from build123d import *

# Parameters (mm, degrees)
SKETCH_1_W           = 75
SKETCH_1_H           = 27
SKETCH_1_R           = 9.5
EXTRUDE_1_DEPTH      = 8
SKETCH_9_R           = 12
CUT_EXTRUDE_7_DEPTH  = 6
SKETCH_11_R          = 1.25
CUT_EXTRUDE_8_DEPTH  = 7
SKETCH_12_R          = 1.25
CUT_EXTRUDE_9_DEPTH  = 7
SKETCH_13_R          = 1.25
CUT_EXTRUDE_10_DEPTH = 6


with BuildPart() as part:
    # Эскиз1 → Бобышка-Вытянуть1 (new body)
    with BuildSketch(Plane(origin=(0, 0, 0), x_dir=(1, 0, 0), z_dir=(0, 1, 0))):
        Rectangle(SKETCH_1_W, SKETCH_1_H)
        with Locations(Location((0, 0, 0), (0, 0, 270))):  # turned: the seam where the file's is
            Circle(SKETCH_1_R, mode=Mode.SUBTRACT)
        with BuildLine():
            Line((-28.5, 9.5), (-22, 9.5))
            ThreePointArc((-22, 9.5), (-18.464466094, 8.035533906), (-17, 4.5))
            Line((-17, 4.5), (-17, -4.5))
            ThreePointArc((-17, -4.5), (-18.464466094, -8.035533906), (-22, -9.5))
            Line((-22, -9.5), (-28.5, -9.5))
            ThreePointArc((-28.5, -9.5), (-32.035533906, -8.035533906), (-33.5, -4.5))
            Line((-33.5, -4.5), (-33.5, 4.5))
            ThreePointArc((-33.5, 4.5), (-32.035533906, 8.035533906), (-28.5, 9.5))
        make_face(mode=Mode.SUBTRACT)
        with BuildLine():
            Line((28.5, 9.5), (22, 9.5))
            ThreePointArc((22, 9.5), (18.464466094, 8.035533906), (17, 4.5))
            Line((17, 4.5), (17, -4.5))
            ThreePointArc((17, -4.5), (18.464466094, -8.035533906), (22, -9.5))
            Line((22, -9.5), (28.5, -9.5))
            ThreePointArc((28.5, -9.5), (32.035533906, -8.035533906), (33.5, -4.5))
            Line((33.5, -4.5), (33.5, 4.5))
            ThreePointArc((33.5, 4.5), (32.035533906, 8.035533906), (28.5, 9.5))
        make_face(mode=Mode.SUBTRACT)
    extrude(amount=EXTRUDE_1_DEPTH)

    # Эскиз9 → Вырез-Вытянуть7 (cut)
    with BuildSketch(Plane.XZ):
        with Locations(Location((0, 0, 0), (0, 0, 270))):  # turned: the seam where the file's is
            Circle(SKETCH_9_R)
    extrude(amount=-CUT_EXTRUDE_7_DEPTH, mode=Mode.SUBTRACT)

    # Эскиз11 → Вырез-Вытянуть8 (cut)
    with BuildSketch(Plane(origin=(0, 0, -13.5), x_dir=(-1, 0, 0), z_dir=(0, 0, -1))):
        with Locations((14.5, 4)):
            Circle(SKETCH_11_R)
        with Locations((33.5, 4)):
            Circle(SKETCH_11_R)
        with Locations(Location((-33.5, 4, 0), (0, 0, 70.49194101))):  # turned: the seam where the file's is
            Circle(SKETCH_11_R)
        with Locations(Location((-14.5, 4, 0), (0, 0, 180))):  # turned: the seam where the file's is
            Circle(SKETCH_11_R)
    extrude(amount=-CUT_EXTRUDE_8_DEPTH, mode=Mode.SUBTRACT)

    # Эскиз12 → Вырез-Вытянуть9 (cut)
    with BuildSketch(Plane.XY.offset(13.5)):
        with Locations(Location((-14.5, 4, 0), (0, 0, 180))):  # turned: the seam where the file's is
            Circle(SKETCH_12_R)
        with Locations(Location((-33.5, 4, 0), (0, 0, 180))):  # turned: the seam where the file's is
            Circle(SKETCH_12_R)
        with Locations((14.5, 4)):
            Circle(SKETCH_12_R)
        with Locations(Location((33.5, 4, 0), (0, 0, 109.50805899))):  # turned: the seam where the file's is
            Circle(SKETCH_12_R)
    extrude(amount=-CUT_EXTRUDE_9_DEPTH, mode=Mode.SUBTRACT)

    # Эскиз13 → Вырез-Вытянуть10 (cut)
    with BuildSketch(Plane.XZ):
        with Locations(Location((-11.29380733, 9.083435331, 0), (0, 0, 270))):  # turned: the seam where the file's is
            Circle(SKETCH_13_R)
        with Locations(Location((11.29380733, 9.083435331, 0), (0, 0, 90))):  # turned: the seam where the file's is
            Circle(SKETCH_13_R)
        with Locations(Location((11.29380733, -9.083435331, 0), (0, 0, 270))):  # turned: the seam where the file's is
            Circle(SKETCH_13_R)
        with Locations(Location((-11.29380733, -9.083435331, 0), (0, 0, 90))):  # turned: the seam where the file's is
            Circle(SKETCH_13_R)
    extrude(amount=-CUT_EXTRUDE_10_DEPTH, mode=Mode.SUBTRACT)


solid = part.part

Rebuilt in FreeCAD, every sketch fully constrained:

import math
import FreeCAD as App
import Part
import Sketcher

doc = App.newDocument("Part")
body = doc.addObject("PartDesign::Body", "Body")

sketch1 = body.newObject("Sketcher::SketchObject", "Sketch")
sketch1.AttachmentSupport = (doc.getObject("XZ_Plane"), [""])
sketch1.MapMode = "FlatFace"
sketch1.addGeometry([
    Part.LineSegment(App.Vector(-37.5, -13.5, 0), App.Vector(-37.5, 13.5, 0)),
    Part.LineSegment(App.Vector(-37.5, 13.5, 0), App.Vector(37.5, 13.5, 0)),
    Part.LineSegment(App.Vector(37.5, 13.5, 0), App.Vector(37.5, -13.5, 0)),
    Part.LineSegment(App.Vector(37.5, -13.5, 0), App.Vector(-37.5, -13.5, 0)),
    Part.ArcOfCircle(Part.Circle(App.Vector(-28.5, -4.5, 0), App.Vector(0, 0, 1), 5), math.radians(180), math.radians(270)),
    Part.LineSegment(App.Vector(-28.5, -9.5, 0), App.Vector(-22, -9.5, 0)),
    Part.ArcOfCircle(Part.Circle(App.Vector(-22, -4.5, 0), App.Vector(0, 0, 1), 5), math.radians(-90), math.radians(0)),
    Part.LineSegment(App.Vector(-17, -4.5, 0), App.Vector(-17, 4.5, 0)),
    Part.ArcOfCircle(Part.Circle(App.Vector(-22, 4.5, 0), App.Vector(0, 0, 1), 5), math.radians(0), math.radians(90)),
    Part.LineSegment(App.Vector(-22, 9.5, 0), App.Vector(-28.5, 9.5, 0)),
    Part.ArcOfCircle(Part.Circle(App.Vector(-28.5, 4.5, 0), App.Vector(0, 0, 1), 5), math.radians(90), math.radians(180)),
    Part.LineSegment(App.Vector(-33.5, 4.5, 0), App.Vector(-33.5, -4.5, 0)),
    Part.Circle(App.Vector(0, 0, 0), App.Vector(0, 0, 1), 9.5),
    Part.LineSegment(App.Vector(22, -9.5, 0), App.Vector(28.5, -9.5, 0)),
    Part.ArcOfCircle(Part.Circle(App.Vector(28.5, -4.5, 0), App.Vector(0, 0, 1), 5), math.radians(-90), math.radians(0)),
    Part.LineSegment(App.Vector(33.5, -4.5, 0), App.Vector(33.5, 4.5, 0)),
    Part.ArcOfCircle(Part.Circle(App.Vector(28.5, 4.5, 0), App.Vector(0, 0, 1), 5), math.radians(0), math.radians(90)),
    Part.LineSegment(App.Vector(28.5, 9.5, 0), App.Vector(22, 9.5, 0)),
    Part.ArcOfCircle(Part.Circle(App.Vector(22, 4.5, 0), App.Vector(0, 0, 1), 5), math.radians(90), math.radians(180)),
    Part.LineSegment(App.Vector(17, 4.5, 0), App.Vector(17, -4.5, 0)),
    Part.ArcOfCircle(Part.Circle(App.Vector(22, -4.5, 0), App.Vector(0, 0, 1), 5), math.radians(180), math.radians(270)),
], False)
sketch1.addConstraint([
    Sketcher.Constraint("Coincident", 0, 2, 1, 1),
    Sketcher.Constraint("Coincident", 1, 2, 2, 1),
    Sketcher.Constraint("Coincident", 2, 2, 3, 1),
    Sketcher.Constraint("Coincident", 3, 2, 0, 1),
    Sketcher.Constraint("Tangent", 4, 2, 5, 1),
    Sketcher.Constraint("Tangent", 5, 2, 6, 1),
    Sketcher.Constraint("Tangent", 6, 2, 7, 1),
    Sketcher.Constraint("Tangent", 7, 2, 8, 1),
    Sketcher.Constraint("Tangent", 8, 2, 9, 1),
    Sketcher.Constraint("Tangent", 9, 2, 10, 1),
    Sketcher.Constraint("Tangent", 10, 2, 11, 1),
    Sketcher.Constraint("Tangent", 11, 2, 4, 1),
    Sketcher.Constraint("Tangent", 13, 2, 14, 1),
    Sketcher.Constraint("Tangent", 14, 2, 15, 1),
    Sketcher.Constraint("Tangent", 15, 2, 16, 1),
    Sketcher.Constraint("Tangent", 16, 2, 17, 1),
    Sketcher.Constraint("Tangent", 17, 2, 18, 1),
    Sketcher.Constraint("Tangent", 18, 2, 19, 1),
    Sketcher.Constraint("Tangent", 19, 2, 20, 1),
    Sketcher.Constraint("Tangent", 20, 2, 13, 1),
    Sketcher.Constraint("Vertical", 0),
    Sketcher.Constraint("Horizontal", 1),
    Sketcher.Constraint("Vertical", 2),
    Sketcher.Constraint("Horizontal", 3),
    Sketcher.Constraint("Horizontal", 5),
    Sketcher.Constraint("Vertical", 7),
    Sketcher.Constraint("Horizontal", 9),
    Sketcher.Constraint("Vertical", 11),
    Sketcher.Constraint("Horizontal", 13),
    Sketcher.Constraint("Vertical", 15),
    Sketcher.Constraint("Horizontal", 17),
    Sketcher.Constraint("Vertical", 19),
    Sketcher.Constraint("Coincident", 12, 3, -1, 1),
    Sketcher.Constraint("Equal", 4, 6),
    Sketcher.Constraint("Equal", 6, 8),
    Sketcher.Constraint("Equal", 8, 10),
    Sketcher.Constraint("Equal", 10, 14),
    Sketcher.Constraint("Equal", 14, 16),
    Sketcher.Constraint("Equal", 16, 18),
    Sketcher.Constraint("Equal", 18, 20),
    Sketcher.Constraint("Symmetric", 10, 3, 14, 3, -1, 1),
    Sketcher.Constraint("Symmetric", 6, 3, 18, 3, -1, 1),
    Sketcher.Constraint("Symmetric", 0, 2, 2, 2, -1, 1),
    Sketcher.Constraint("Horizontal", 6, 3, 14, 3),
    Sketcher.Constraint("Diameter", 12, 19.0),
    Sketcher.Constraint("Radius", 4, 5.0),
    Sketcher.Constraint("DistanceX", 1, 1, 1, 2, 75.0),
    Sketcher.Constraint("DistanceY", 0, 1, 0, 2, 27.0),
    Sketcher.Constraint("DistanceY", 7, 1, 7, 2, 9.0),
    Sketcher.Constraint("DistanceX", 5, 1, 5, 2, 6.5),
    Sketcher.Constraint("DistanceX", 6, 3, -1, 1, 22.0),
])
pad1 = body.newObject("PartDesign::Pad", "Pad")
pad1.Profile = sketch1
pad1.Length = 8
pad1.Reversed = True

sketch2 = body.newObject("Sketcher::SketchObject", "Sketch001")
sketch2.AttachmentSupport = (doc.getObject("XZ_Plane"), [""])
sketch2.MapMode = "FlatFace"
sketch2.addGeometry(Part.Circle(App.Vector(0, 0, 0), App.Vector(0, 0, 1), 12), False)
sketch2.addConstraint([
    Sketcher.Constraint("Coincident", 0, 3, -1, 1),
    Sketcher.Constraint("Diameter", 0, 24.0),
])
pocket1 = body.newObject("PartDesign::Pocket", "Pocket")
pocket1.Profile = sketch2
pocket1.Length = 6

sketch3 = body.newObject("Sketcher::SketchObject", "Sketch002")
sketch3.AttachmentSupport = (doc.getObject("XY_Plane"), [""])
sketch3.MapMode = "FlatFace"
sketch3.AttachmentOffset = App.Placement(App.Vector(0, 0, -13.5), App.Rotation())
sketch3.addGeometry([
    Part.Circle(App.Vector(-14.5, 4, 0), App.Vector(0, 0, 1), 1.25),
    Part.Circle(App.Vector(-33.5, 4, 0), App.Vector(0, 0, 1), 1.25),
    Part.Circle(App.Vector(33.5, 4, 0), App.Vector(0, 0, 1), 1.25),
    Part.Circle(App.Vector(14.5, 4, 0), App.Vector(0, 0, 1), 1.25),
], False)
sketch3.addConstraint([
    Sketcher.Constraint("Equal", 0, 1),
    Sketcher.Constraint("Equal", 1, 2),
    Sketcher.Constraint("Equal", 2, 3),
    Sketcher.Constraint("Symmetric", 1, 3, 2, 3, -2),
    Sketcher.Constraint("Symmetric", 0, 3, 3, 3, -2),
    Sketcher.Constraint("Horizontal", 0, 3, 1, 3),
    Sketcher.Constraint("Diameter", 0, 2.5),
    Sketcher.Constraint("DistanceY", -1, 1, 0, 3, 4.0),
    Sketcher.Constraint("DistanceX", 1, 3, 0, 3, 19.0),
    Sketcher.Constraint("DistanceX", 0, 3, 2, 3, 48.0),
])
pocket2 = body.newObject("PartDesign::Pocket", "Pocket001")
pocket2.Profile = sketch3
pocket2.Length = 7
pocket2.Reversed = True

sketch4 = body.newObject("Sketcher::SketchObject", "Sketch003")
sketch4.AttachmentSupport = (doc.getObject("XY_Plane"), [""])
sketch4.MapMode = "FlatFace"
sketch4.AttachmentOffset = App.Placement(App.Vector(0, 0, 13.5), App.Rotation())
sketch4.addGeometry([
    Part.Circle(App.Vector(-14.5, 4, 0), App.Vector(0, 0, 1), 1.25),
    Part.Circle(App.Vector(-33.5, 4, 0), App.Vector(0, 0, 1), 1.25),
    Part.Circle(App.Vector(14.5, 4, 0), App.Vector(0, 0, 1), 1.25),
    Part.Circle(App.Vector(33.5, 4, 0), App.Vector(0, 0, 1), 1.25),
], False)
sketch4.addConstraint([
    Sketcher.Constraint("Equal", 0, 1),
    Sketcher.Constraint("Equal", 1, 2),
    Sketcher.Constraint("Equal", 2, 3),
    Sketcher.Constraint("Symmetric", 0, 3, 2, 3, -2),
    Sketcher.Constraint("Symmetric", 1, 3, 3, 3, -2),
    Sketcher.Constraint("Horizontal", 0, 3, 1, 3),
    Sketcher.Constraint("Diameter", 0, 2.5),
    Sketcher.Constraint("DistanceY", -1, 1, 0, 3, 4.0),
    Sketcher.Constraint("DistanceX", 1, 3, 0, 3, 19.0),
    Sketcher.Constraint("DistanceX", 0, 3, 2, 3, 29.0),
])
pocket3 = body.newObject("PartDesign::Pocket", "Pocket002")
pocket3.Profile = sketch4
pocket3.Length = 7

sketch5 = body.newObject("Sketcher::SketchObject", "Sketch004")
sketch5.AttachmentSupport = (doc.getObject("XZ_Plane"), [""])
sketch5.MapMode = "FlatFace"
sketch5.addGeometry([
    Part.Circle(App.Vector(-11.293807, 9.083435, 0), App.Vector(0, 0, 1), 1.25),
    Part.Circle(App.Vector(11.293807, 9.083435, 0), App.Vector(0, 0, 1), 1.25),
    Part.Circle(App.Vector(11.293807, -9.083435, 0), App.Vector(0, 0, 1), 1.25),
    Part.Circle(App.Vector(-11.293807, -9.083435, 0), App.Vector(0, 0, 1), 1.25),
], False)
sketch5.addConstraint([
    Sketcher.Constraint("Equal", 0, 1),
    Sketcher.Constraint("Equal", 1, 2),
    Sketcher.Constraint("Equal", 2, 3),
    Sketcher.Constraint("Symmetric", 0, 3, 2, 3, -1, 1),
    Sketcher.Constraint("Symmetric", 1, 3, 3, 3, -1, 1),
    Sketcher.Constraint("Symmetric", 0, 3, 1, 3, -2),
    Sketcher.Constraint("Diameter", 0, 2.5),
    Sketcher.Constraint("DistanceY", 2, 3, 1, 3, 18.166871),
    Sketcher.Constraint("DistanceX", 0, 3, -1, 1, 11.293807),
])
pocket4 = body.newObject("PartDesign::Pocket", "Pocket003")
pocket4.Profile = sketch5
pocket4.Length = 6

doc.recompute()
